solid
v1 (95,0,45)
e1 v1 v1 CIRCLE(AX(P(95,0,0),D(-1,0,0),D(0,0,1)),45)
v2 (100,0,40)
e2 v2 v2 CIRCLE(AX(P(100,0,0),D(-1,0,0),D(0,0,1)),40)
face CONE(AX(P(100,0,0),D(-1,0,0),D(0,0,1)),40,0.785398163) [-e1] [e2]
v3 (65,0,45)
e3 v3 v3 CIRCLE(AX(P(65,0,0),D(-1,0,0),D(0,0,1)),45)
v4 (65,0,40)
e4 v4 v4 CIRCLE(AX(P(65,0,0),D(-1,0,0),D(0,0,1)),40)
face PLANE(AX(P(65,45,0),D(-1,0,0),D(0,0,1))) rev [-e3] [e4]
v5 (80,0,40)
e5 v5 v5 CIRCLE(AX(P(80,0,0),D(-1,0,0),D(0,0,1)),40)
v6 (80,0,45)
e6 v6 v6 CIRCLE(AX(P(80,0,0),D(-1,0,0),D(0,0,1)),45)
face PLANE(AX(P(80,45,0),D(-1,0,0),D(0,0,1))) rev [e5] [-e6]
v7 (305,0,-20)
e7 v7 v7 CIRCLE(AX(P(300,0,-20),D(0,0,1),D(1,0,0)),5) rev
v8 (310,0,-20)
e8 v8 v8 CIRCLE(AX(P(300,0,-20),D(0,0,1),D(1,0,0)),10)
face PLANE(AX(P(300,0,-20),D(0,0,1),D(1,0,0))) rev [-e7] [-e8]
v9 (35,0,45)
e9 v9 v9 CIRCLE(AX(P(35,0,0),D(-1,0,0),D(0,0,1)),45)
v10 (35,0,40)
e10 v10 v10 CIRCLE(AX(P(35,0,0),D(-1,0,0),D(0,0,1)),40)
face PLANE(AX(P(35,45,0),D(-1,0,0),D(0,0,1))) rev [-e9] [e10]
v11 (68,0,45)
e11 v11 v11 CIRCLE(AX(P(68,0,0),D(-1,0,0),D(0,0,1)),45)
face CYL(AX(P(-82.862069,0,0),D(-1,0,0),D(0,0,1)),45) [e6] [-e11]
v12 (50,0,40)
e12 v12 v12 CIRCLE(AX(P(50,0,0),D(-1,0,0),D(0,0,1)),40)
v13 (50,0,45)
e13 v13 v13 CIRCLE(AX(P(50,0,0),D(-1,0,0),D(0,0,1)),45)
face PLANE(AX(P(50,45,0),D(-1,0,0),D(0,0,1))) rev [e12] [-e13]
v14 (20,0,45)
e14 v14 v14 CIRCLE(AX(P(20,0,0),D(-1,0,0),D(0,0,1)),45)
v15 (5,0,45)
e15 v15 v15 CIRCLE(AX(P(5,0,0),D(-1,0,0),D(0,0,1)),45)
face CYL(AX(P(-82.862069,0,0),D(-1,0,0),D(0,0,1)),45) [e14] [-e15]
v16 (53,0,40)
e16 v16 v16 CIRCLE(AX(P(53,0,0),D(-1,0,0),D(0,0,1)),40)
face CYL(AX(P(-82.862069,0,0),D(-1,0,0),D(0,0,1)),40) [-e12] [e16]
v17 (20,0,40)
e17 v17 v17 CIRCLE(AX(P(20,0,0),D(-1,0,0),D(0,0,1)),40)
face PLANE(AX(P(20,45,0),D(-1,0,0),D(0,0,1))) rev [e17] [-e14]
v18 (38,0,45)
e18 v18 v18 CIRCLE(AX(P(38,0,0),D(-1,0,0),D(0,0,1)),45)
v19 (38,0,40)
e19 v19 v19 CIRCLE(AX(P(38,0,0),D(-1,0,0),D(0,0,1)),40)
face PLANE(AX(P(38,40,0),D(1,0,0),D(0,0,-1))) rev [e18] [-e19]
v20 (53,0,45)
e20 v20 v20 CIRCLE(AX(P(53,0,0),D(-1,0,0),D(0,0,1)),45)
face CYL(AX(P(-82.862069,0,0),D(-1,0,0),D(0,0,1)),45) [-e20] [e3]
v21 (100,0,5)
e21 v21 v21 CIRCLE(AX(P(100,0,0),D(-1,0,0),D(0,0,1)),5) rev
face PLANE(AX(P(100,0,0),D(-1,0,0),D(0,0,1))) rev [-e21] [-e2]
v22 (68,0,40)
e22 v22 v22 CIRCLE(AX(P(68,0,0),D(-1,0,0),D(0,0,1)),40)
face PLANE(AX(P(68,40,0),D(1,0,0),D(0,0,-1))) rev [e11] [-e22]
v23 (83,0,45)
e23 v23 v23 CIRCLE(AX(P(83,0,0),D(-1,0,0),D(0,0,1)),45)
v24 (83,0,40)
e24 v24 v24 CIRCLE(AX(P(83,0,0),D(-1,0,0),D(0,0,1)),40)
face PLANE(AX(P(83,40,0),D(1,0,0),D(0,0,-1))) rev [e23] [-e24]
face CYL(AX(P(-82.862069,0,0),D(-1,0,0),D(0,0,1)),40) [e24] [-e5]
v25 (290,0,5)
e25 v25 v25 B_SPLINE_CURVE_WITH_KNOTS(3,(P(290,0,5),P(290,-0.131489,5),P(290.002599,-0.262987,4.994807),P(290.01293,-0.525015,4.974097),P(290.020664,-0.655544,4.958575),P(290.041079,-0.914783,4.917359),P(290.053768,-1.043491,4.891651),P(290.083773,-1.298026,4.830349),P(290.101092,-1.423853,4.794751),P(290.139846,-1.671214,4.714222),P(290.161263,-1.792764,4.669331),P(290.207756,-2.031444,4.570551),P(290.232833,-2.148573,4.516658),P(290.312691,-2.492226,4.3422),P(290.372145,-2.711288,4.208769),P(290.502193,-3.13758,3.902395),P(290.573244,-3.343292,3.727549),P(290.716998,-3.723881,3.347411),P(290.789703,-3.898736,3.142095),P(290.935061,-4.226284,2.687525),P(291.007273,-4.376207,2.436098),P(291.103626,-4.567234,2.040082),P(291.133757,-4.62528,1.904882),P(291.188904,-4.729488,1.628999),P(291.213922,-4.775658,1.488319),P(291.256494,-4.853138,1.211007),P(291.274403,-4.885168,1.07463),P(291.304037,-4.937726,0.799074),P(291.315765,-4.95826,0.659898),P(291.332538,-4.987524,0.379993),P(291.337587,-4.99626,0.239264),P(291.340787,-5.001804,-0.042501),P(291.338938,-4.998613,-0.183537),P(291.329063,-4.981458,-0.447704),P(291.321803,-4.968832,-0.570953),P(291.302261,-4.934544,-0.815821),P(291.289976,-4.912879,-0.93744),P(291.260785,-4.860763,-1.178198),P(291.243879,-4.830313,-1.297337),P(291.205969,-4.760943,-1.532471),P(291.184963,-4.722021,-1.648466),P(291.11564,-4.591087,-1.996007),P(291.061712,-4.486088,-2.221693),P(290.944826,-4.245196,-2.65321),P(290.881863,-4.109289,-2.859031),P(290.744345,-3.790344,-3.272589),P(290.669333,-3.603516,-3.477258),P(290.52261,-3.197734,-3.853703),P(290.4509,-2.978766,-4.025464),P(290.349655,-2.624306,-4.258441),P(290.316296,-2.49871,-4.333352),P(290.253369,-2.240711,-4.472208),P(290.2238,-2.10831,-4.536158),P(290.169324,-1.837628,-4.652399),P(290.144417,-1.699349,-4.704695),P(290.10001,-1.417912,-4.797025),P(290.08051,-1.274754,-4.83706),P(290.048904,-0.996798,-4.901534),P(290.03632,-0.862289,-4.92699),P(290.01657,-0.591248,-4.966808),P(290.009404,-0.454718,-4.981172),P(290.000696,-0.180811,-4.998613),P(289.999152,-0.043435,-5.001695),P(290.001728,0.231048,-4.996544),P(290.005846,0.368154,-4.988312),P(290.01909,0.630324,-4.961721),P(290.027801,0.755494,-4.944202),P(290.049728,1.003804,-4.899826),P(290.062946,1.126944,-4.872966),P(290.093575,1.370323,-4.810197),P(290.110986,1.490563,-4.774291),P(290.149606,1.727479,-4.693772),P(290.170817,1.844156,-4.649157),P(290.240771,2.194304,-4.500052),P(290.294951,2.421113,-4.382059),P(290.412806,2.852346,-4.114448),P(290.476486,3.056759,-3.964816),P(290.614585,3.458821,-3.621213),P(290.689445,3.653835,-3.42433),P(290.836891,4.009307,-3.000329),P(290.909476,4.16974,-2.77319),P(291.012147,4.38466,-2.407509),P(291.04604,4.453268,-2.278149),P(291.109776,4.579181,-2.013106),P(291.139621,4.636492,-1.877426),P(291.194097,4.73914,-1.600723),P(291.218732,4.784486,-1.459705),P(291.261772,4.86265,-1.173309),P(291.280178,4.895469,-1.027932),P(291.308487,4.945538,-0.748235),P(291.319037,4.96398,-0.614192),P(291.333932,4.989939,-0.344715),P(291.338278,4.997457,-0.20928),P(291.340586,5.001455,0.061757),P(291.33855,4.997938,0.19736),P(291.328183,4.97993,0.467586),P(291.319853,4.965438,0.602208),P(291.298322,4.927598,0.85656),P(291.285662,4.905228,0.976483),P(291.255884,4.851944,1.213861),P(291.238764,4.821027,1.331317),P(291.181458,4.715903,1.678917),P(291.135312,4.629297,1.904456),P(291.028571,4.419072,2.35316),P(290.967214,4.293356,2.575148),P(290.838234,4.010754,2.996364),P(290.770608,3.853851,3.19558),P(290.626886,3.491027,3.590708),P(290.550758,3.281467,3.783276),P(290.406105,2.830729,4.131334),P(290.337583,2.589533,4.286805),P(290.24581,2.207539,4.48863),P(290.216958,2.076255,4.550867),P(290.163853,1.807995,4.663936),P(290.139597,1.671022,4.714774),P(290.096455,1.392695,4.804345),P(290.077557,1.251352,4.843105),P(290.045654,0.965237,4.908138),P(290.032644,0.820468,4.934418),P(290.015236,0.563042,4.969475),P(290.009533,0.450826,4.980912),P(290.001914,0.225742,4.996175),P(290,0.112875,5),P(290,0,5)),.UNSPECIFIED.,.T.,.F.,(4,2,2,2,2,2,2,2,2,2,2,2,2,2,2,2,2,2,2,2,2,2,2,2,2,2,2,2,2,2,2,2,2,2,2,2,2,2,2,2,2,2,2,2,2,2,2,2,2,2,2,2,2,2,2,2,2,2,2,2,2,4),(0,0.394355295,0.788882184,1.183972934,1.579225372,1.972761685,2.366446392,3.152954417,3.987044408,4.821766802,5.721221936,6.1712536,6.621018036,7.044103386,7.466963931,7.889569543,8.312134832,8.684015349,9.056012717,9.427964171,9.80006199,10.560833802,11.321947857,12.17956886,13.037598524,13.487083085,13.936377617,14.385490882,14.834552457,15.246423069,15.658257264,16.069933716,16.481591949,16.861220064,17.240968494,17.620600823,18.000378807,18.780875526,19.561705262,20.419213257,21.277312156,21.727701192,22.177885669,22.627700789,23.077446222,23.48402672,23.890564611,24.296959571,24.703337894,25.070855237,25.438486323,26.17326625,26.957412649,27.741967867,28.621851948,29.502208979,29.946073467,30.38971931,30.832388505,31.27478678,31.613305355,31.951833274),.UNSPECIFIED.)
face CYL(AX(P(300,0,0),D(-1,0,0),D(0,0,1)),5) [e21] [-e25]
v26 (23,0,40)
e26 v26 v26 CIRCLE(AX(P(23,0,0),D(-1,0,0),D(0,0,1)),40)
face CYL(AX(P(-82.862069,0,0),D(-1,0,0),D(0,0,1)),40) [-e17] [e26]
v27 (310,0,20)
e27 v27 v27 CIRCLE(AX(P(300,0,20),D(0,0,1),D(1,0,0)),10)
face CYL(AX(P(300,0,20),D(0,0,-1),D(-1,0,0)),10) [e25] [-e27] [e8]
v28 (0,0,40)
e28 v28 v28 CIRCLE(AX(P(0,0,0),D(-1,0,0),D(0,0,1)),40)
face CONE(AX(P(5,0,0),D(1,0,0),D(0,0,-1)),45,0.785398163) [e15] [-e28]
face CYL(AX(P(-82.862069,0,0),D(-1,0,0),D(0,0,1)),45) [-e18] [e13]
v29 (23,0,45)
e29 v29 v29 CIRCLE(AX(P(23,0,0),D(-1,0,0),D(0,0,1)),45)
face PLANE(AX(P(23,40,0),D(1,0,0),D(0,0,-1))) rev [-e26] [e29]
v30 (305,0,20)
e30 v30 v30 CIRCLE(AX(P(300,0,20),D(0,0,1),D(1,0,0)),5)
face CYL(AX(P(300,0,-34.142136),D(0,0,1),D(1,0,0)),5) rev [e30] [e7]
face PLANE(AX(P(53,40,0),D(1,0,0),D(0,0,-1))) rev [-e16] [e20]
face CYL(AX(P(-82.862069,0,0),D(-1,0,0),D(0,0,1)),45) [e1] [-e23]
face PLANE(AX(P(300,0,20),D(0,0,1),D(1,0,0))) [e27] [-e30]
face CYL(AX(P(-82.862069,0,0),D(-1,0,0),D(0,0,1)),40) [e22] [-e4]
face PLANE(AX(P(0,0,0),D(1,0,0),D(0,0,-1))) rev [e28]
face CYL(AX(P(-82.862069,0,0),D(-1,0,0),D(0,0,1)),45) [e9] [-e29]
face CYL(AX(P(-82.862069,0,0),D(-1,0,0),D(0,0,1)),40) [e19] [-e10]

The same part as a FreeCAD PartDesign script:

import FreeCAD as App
import Part
import Sketcher

V = App.Vector
Q = App.Units.Quantity

doc = App.newDocument("Part")
body = doc.addObject("PartDesign::Body", "Body")

# Sketch on XY plane
sketch1 = body.newObject("Sketcher::SketchObject", "Sketch")
sketch1.AttachmentSupport = (doc.getObject("XY_Plane"), [""])
sketch1.MapMode = "FlatFace"
sketch1.addGeometry([
    Part.LineSegment(V(5, 45, 0), V(0, 40, 0)),  # 0
    Part.LineSegment(V(0, 40, 0), V(0, 0, 0)),  # 1
    Part.LineSegment(V(0, 0, 0), V(100, 0, 0)),  # 2
    Part.LineSegment(V(100, 0, 0), V(100, 40, 0)),  # 3
    Part.LineSegment(V(100, 40, 0), V(95, 45, 0)),  # 4
    Part.LineSegment(V(95, 45, 0), V(83, 45, 0)),  # 5
    Part.LineSegment(V(83, 45, 0), V(83, 40, 0)),  # 6
    Part.LineSegment(V(83, 40, 0), V(80, 40, 0)),  # 7
    Part.LineSegment(V(80, 40, 0), V(80, 45, 0)),  # 8
    Part.LineSegment(V(80, 45, 0), V(68, 45, 0)),  # 9
    Part.LineSegment(V(68, 45, 0), V(68, 40, 0)),  # 10
    Part.LineSegment(V(68, 40, 0), V(65, 40, 0)),  # 11
    Part.LineSegment(V(65, 40, 0), V(65, 45, 0)),  # 12
    Part.LineSegment(V(65, 45, 0), V(53, 45, 0)),  # 13
    Part.LineSegment(V(53, 45, 0), V(53, 40, 0)),  # 14
    Part.LineSegment(V(53, 40, 0), V(50, 40, 0)),  # 15
    Part.LineSegment(V(50, 40, 0), V(50, 45, 0)),  # 16
    Part.LineSegment(V(50, 45, 0), V(38, 45, 0)),  # 17
    Part.LineSegment(V(38, 45, 0), V(38, 40, 0)),  # 18
    Part.LineSegment(V(38, 40, 0), V(35, 40, 0)),  # 19
    Part.LineSegment(V(35, 40, 0), V(35, 45, 0)),  # 20
    Part.LineSegment(V(35, 45, 0), V(23, 45, 0)),  # 21
    Part.LineSegment(V(23, 45, 0), V(23, 40, 0)),  # 22
    Part.LineSegment(V(23, 40, 0), V(20, 40, 0)),  # 23
    Part.LineSegment(V(20, 40, 0), V(20, 45, 0)),  # 24
    Part.LineSegment(V(20, 45, 0), V(5, 45, 0)),  # 25
], False)
sketch1.addConstraint([
    Sketcher.Constraint("Coincident", 0, 2, 1, 1),
    Sketcher.Constraint("Coincident", 1, 2, 2, 1),
    Sketcher.Constraint("Coincident", 2, 2, 3, 1),
    Sketcher.Constraint("Coincident", 3, 2, 4, 1),
    Sketcher.Constraint("Coincident", 4, 2, 5, 1),
    Sketcher.Constraint("Coincident", 5, 2, 6, 1),
    Sketcher.Constraint("Coincident", 6, 2, 7, 1),
    Sketcher.Constraint("Coincident", 7, 2, 8, 1),
    Sketcher.Constraint("Coincident", 8, 2, 9, 1),
    Sketcher.Constraint("Coincident", 9, 2, 10, 1),
    Sketcher.Constraint("Coincident", 10, 2, 11, 1),
    Sketcher.Constraint("Coincident", 11, 2, 12, 1),
    Sketcher.Constraint("Coincident", 12, 2, 13, 1),
    Sketcher.Constraint("Coincident", 13, 2, 14, 1),
    Sketcher.Constraint("Coincident", 14, 2, 15, 1),
    Sketcher.Constraint("Coincident", 15, 2, 16, 1),
    Sketcher.Constraint("Coincident", 16, 2, 17, 1),
    Sketcher.Constraint("Coincident", 17, 2, 18, 1),
    Sketcher.Constraint("Coincident", 18, 2, 19, 1),
    Sketcher.Constraint("Coincident", 19, 2, 20, 1),
    Sketcher.Constraint("Coincident", 20, 2, 21, 1),
    Sketcher.Constraint("Coincident", 21, 2, 22, 1),
    Sketcher.Constraint("Coincident", 22, 2, 23, 1),
    Sketcher.Constraint("Coincident", 23, 2, 24, 1),
    Sketcher.Constraint("Coincident", 24, 2, 25, 1),
    Sketcher.Constraint("Coincident", 25, 2, 0, 1),
    Sketcher.Constraint("Vertical", 1),
    Sketcher.Constraint("Horizontal", 2),
    Sketcher.Constraint("Vertical", 3),
    Sketcher.Constraint("Horizontal", 5),
    Sketcher.Constraint("Vertical", 6),
    Sketcher.Constraint("Horizontal", 7),
    Sketcher.Constraint("Vertical", 8),
    Sketcher.Constraint("Horizontal", 9),
    Sketcher.Constraint("Vertical", 10),
    Sketcher.Constraint("Horizontal", 11),
    Sketcher.Constraint("Vertical", 12),
    Sketcher.Constraint("Horizontal", 13),
    Sketcher.Constraint("Vertical", 14),
    Sketcher.Constraint("Horizontal", 15),
    Sketcher.Constraint("Vertical", 16),
    Sketcher.Constraint("Horizontal", 17),
    Sketcher.Constraint("Vertical", 18),
    Sketcher.Constraint("Horizontal", 19),
    Sketcher.Constraint("Vertical", 20),
    Sketcher.Constraint("Horizontal", 21),
    Sketcher.Constraint("Vertical", 22),
    Sketcher.Constraint("Horizontal", 23),
    Sketcher.Constraint("Vertical", 24),
    Sketcher.Constraint("Horizontal", 25),
    Sketcher.Constraint("Coincident", 1, 2, -1, 1),
    Sketcher.Constraint("Perpendicular", 0, 4),
    Sketcher.Constraint("Horizontal", 0, 2, 3, 2),
    Sketcher.Constraint("Horizontal", 3, 2, 6, 2),
    Sketcher.Constraint("Horizontal", 5, 2, 8, 2),
    Sketcher.Constraint("Horizontal", 7, 2, 10, 2),
    Sketcher.Constraint("Horizontal", 9, 2, 12, 2),
    Sketcher.Constraint("Horizontal", 11, 2, 14, 2),
    Sketcher.Constraint("Horizontal", 13, 2, 16, 2),
    Sketcher.Constraint("Horizontal", 15, 2, 18, 2),
    Sketcher.Constraint("Horizontal", 17, 2, 20, 2),
    Sketcher.Constraint("Horizontal", 19, 2, 22, 2),
    Sketcher.Constraint("Horizontal", 21, 2, 24, 2),
    Sketcher.Constraint("Equal", 5, 9),
    Sketcher.Constraint("Equal", 7, 11),
    Sketcher.Constraint("Equal", 9, 13),
    Sketcher.Constraint("Equal", 11, 15),
    Sketcher.Constraint("Equal", 13, 17),
    Sketcher.Constraint("Equal", 15, 19),
    Sketcher.Constraint("Equal", 17, 21),
    Sketcher.Constraint("Equal", 19, 23),
    Sketcher.Constraint("Equal", 0, 4),
    Sketcher.Constraint("DistanceX", 2, 1, 2, 2, Q("100 mm")),
    Sketcher.Constraint("DistanceX", 5, 2, 5, 1, Q("12 mm")),
    Sketcher.Constraint("DistanceX", 7, 2, 7, 1, Q("3 mm")),
    Sketcher.Constraint("DistanceX", 25, 2, 25, 1, Q("15 mm")),
    Sketcher.Constraint("DistanceY", 1, 2, 1, 1, Q("40 mm")),
])
revolution = body.newObject("PartDesign::Revolution", "Revolution")
revolution.Profile = sketch1
revolution.ReferenceAxis = (sketch1, ["H_Axis"])
revolution.Angle = 360

# Sketch on YZ plane
sketch2 = body.newObject("Sketcher::SketchObject", "Sketch001")
sketch2.AttachmentSupport = (doc.getObject("YZ_Plane"), [""])
sketch2.MapMode = "FlatFace"
sketch2.AttachmentOffset = App.Placement(V(0, 0, 100), App.Rotation())
sketch2.addGeometry(Part.Circle(V(0, 0, 0), V(0, 0, 1), 5), False)
sketch2.addConstraint([
    Sketcher.Constraint("Coincident", 0, 3, -1, 1),
    Sketcher.Constraint("Diameter", 0, Q("10 mm")),
])
pad1 = body.newObject("PartDesign::Pad", "Pad")
pad1.Profile = sketch2
pad1.Length = 200

# Sketch on XY plane
sketch3 = body.newObject("Sketcher::SketchObject", "Sketch002")
sketch3.AttachmentSupport = (doc.getObject("XY_Plane"), [""])
sketch3.MapMode = "FlatFace"
sketch3.addGeometry(Part.Circle(V(300, 0, 0), V(0, 0, 1), 10), False)
sketch3.addConstraint([
    Sketcher.Constraint("PointOnObject", 0, 3, -1),
    Sketcher.Constraint("Diameter", 0, Q("20 mm")),
    Sketcher.Constraint("DistanceX", -1, 1, 0, 3, Q("300 mm")),
])
pad2 = body.newObject("PartDesign::Pad", "Pad001")
pad2.Profile = sketch3
pad2.Length = 40
pad2.Midplane = True

# Sketch on XY plane
sketch4 = body.newObject("Sketcher::SketchObject", "Sketch003")
sketch4.AttachmentSupport = (doc.getObject("XY_Plane"), [""])
sketch4.MapMode = "FlatFace"
sketch4.AttachmentOffset = App.Placement(V(0, 0, 20), App.Rotation())
sketch4.addGeometry(Part.Circle(V(300, 0, 0), V(0, 0, 1), 5), False)
sketch4.addConstraint([
    Sketcher.Constraint("PointOnObject", 0, 3, -1),
    Sketcher.Constraint("Diameter", 0, Q("10 mm")),
    Sketcher.Constraint("DistanceX", -1, 1, 0, 3, Q("300 mm")),
])
pocket1 = body.newObject("PartDesign::Pocket", "Pocket")
pocket1.Profile = sketch4
pocket1.Length = 40

doc.recompute()
